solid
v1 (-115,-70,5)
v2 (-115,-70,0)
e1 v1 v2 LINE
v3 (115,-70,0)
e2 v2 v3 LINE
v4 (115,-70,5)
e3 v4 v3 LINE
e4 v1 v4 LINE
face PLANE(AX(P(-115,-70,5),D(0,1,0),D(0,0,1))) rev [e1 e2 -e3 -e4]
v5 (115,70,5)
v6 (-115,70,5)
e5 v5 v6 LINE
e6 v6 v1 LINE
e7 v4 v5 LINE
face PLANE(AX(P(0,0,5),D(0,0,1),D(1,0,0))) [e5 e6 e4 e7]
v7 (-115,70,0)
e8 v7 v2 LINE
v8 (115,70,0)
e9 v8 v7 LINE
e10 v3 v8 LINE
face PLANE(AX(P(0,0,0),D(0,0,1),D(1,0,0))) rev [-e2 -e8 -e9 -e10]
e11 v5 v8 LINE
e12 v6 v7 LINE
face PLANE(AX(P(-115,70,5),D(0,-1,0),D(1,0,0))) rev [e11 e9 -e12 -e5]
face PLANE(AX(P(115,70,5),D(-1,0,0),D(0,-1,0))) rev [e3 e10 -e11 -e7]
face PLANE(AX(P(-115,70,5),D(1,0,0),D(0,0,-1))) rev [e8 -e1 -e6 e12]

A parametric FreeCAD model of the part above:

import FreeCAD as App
import Part
import Sketcher
Q = App.Units.Quantity

doc = App.newDocument("Part")
body = doc.addObject("PartDesign::Body", "Body")

# Sketch on XY plane
sketch1 = body.newObject("Sketcher::SketchObject", "Sketch")
sketch1.AttachmentSupport = (doc.getObject("XY_Plane"), [""])
sketch1.MapMode = "FlatFace"
sketch1.addGeometry([
    Part.LineSegment(App.Vector(-115, 70, 0), App.Vector(-115, -70, 0)),
    Part.LineSegment(App.Vector(-115, -70, 0), App.Vector(115, -70, 0)),
    Part.LineSegment(App.Vector(115, -70, 0), App.Vector(115, 70, 0)),
    Part.LineSegment(App.Vector(115, 70, 0), App.Vector(-115, 70, 0)),
], False)
sketch1.addConstraint([
    Sketcher.Constraint("Coincident", 0, 2, 1, 1),
    Sketcher.Constraint("Coincident", 1, 2, 2, 1),
    Sketcher.Constraint("Coincident", 2, 2, 3, 1),
    Sketcher.Constraint("Coincident", 3, 2, 0, 1),
    Sketcher.Constraint("Vertical", 0),
    Sketcher.Constraint("Horizontal", 1),
    Sketcher.Constraint("Vertical", 2),
    Sketcher.Constraint("Horizontal", 3),
    Sketcher.Constraint("Symmetric", 0, 2, 2, 2, -1, 1),
    Sketcher.Constraint("DistanceX", 1, 1, 1, 2, Q("230 mm")),
    Sketcher.Constraint("DistanceY", 0, 2, 0, 1, Q("140 mm")),
])
pad1 = body.newObject("PartDesign::Pad", "Pad")
pad1.Profile = sketch1
pad1.Length = 5

doc.recompute()
